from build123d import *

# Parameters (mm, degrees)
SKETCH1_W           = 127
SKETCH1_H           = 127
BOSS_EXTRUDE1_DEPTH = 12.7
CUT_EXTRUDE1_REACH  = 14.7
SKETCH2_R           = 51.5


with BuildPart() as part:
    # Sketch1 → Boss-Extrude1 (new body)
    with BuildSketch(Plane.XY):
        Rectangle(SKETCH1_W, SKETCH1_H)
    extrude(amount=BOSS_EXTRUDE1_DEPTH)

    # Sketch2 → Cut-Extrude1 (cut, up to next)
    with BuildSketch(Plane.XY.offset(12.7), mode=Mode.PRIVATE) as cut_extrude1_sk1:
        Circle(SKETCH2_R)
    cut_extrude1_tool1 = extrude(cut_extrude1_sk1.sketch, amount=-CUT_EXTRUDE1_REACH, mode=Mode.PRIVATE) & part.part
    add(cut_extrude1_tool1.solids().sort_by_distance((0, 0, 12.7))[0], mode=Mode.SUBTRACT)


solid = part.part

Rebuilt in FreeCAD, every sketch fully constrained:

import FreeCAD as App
import Part
import Sketcher
Q = App.Units.Quantity


def add_polygon(sketch, points):
    """Adds a closed chain of lines whose ends are joined by coincident constraints."""
    first, n = sketch.GeometryCount, len(points)
    for a, b in zip(points, points[1:] + points[:1]):
        sketch.addGeometry(Part.LineSegment(App.Vector(*a, 0), App.Vector(*b, 0)), False)
    for i in range(n):
        sketch.addConstraint(Sketcher.Constraint("Coincident", first + i, 2, first + (i + 1) % n, 1))

doc = App.newDocument("Part")
body = doc.addObject("PartDesign::Body", "Body")

# Sketch on XY plane
sketch1 = doc.addObject("Sketcher::SketchObject", "Sketch")
body.addObject(sketch1)
sketch1.AttachmentSupport = (doc.XY_Plane, [""])
sketch1.MapMode = "FlatFace"
add_polygon(sketch1, [(-64, 64), (-64, -64), (64, -64), (64, 64)])  # lines 0-3
sketch1.addConstraint(Sketcher.Constraint("Vertical", 0))
sketch1.addConstraint(Sketcher.Constraint("Horizontal", 1))
sketch1.addConstraint(Sketcher.Constraint("Vertical", 2))
sketch1.addConstraint(Sketcher.Constraint("Horizontal", 3))
sketch1.addConstraint(Sketcher.Constraint("Symmetric", 0, 2, 2, 2, -1, 1))
sketch1.addConstraint(Sketcher.Constraint("Equal", 3, 0))
sketch1.addConstraint(Sketcher.Constraint("DistanceX", 1, 1, 1, 2, Q("5 in")))
pad1 = doc.addObject("PartDesign::Pad", "Pad")
body.addObject(pad1)
pad1.Profile = sketch1
pad1.Length = Q("0.5 in")

# Sketch on XY plane
sketch2 = doc.addObject("Sketcher::SketchObject", "Sketch001")
body.addObject(sketch2)
sketch2.AttachmentSupport = (doc.XY_Plane, [""])
sketch2.MapMode = "FlatFace"
sketch2.AttachmentOffset = App.Placement(App.Vector(0, 0, 0.5 * 25.4), App.Rotation())
sketch2.addGeometry(Part.Circle(App.Vector(0, 0, 0), App.Vector(0, 0, 1), 52), False)
sketch2.addConstraint(Sketcher.Constraint("Coincident", 0, 3, -1, 1))
sketch2.addConstraint(Sketcher.Constraint("Diameter", 0, Q("103 mm")))
pocket1 = doc.addObject("PartDesign::Pocket", "Pocket")
body.addObject(pocket1)
pocket1.Profile = sketch2
pocket1.Type = "UpToFirst"

doc.recompute()
